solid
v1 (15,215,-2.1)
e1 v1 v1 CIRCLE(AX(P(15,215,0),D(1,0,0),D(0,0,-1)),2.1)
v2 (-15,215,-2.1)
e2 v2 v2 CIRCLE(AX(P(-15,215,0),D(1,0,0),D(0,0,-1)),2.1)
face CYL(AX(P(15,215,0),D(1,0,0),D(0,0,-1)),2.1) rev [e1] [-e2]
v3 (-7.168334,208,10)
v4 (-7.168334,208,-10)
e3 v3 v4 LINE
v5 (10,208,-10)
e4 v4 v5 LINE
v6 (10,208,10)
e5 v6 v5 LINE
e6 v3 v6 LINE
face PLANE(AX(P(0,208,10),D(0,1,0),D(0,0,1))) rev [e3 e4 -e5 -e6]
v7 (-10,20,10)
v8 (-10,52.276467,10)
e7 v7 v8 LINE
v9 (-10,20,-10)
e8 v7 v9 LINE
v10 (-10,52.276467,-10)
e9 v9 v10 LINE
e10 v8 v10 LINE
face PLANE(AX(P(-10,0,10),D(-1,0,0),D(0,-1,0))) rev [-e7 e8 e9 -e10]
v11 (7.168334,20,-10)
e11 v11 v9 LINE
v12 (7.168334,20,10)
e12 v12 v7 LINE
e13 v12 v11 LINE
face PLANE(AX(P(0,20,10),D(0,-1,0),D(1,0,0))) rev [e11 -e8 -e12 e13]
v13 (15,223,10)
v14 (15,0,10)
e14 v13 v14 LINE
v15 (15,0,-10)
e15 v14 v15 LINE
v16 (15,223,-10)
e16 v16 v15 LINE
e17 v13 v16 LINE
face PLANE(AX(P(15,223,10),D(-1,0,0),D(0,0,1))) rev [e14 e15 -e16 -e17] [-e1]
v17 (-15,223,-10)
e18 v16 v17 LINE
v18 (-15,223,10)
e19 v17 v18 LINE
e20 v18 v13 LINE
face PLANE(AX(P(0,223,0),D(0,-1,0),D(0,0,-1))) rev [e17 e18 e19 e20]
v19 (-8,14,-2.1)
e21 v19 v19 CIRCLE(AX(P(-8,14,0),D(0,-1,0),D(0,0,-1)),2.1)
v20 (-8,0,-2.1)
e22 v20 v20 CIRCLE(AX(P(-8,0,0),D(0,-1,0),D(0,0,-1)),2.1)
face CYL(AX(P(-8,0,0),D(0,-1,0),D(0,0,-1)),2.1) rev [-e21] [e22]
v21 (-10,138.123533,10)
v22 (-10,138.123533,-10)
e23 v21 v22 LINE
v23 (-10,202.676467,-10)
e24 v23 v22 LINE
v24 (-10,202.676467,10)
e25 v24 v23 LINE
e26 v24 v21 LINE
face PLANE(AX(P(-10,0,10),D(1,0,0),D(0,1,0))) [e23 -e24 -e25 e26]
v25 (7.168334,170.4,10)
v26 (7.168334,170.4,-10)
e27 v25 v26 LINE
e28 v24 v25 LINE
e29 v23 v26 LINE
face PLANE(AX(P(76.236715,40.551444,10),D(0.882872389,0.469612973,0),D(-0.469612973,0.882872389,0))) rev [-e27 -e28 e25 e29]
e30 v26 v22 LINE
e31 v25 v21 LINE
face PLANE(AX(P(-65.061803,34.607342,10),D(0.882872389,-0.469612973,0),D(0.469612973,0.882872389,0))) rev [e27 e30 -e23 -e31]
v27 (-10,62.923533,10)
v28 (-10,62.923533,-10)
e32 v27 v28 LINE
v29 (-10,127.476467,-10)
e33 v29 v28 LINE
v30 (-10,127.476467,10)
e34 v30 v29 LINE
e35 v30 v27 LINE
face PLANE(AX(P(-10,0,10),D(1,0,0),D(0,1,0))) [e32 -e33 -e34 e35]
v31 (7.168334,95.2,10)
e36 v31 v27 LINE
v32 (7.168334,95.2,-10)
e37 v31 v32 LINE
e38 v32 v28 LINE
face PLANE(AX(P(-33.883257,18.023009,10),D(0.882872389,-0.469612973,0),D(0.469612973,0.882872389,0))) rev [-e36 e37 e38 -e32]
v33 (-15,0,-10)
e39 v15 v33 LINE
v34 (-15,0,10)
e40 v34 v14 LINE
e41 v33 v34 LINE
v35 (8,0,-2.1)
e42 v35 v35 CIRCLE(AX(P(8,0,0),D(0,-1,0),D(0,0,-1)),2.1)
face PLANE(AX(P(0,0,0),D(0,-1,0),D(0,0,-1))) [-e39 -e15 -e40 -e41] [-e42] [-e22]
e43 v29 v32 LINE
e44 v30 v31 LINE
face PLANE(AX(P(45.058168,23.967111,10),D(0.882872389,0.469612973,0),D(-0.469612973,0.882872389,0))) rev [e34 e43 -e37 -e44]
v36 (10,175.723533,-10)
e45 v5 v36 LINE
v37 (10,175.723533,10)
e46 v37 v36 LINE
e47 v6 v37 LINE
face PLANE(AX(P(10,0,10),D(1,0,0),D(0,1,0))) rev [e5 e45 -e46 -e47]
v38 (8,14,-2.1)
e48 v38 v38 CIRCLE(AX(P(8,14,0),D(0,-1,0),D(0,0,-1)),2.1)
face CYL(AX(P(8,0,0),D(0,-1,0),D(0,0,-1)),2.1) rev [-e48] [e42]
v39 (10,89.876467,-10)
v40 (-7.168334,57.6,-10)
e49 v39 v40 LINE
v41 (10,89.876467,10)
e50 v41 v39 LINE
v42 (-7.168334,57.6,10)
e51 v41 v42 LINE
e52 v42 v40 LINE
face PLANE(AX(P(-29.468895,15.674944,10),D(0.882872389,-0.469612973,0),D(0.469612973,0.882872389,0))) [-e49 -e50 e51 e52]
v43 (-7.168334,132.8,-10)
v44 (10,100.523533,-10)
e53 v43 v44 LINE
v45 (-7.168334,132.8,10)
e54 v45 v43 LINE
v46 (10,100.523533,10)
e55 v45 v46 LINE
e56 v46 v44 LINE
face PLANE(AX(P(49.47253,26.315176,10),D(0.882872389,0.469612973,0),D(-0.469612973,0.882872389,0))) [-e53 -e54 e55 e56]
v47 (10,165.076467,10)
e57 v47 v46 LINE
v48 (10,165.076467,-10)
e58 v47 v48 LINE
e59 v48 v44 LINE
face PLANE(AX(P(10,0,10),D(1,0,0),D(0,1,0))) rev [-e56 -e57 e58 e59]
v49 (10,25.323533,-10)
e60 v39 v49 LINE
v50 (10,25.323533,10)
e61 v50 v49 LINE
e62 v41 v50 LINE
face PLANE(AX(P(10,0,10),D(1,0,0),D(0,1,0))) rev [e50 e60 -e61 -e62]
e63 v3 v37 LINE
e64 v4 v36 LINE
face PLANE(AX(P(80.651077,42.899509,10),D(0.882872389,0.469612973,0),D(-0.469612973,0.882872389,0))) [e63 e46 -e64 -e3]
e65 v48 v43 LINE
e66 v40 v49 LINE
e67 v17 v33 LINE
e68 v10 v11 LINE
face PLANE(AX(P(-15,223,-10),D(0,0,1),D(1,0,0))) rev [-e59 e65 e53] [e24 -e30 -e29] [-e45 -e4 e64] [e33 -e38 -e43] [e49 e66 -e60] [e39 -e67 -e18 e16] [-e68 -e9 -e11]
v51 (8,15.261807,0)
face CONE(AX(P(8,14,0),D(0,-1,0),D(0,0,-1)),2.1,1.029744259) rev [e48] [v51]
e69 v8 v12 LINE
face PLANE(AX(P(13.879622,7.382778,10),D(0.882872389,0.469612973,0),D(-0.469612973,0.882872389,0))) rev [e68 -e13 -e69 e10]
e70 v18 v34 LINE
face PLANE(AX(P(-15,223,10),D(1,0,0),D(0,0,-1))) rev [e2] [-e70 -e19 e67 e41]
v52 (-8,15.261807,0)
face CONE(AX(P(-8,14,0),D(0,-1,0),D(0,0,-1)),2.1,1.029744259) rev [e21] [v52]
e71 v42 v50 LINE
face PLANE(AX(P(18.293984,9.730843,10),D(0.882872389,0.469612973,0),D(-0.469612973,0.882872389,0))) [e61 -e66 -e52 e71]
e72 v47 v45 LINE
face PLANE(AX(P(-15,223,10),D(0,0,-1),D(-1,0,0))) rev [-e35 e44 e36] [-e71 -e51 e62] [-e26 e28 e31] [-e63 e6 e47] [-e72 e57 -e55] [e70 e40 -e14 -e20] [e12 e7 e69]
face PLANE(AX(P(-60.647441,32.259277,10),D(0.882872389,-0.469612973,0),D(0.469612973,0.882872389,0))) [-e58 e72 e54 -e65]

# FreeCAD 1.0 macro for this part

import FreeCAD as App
import Part
import Sketcher

V = App.Vector
Q = App.Units.Quantity

doc = App.newDocument("Part")
params = doc.addObject("Spreadsheet::Sheet", "Params")
for row, (alias, value) in enumerate([
    ("sketch1_width", "30 mm"),
    ("sketch1_height", "20 mm"),
    ("pad1_length", "223 mm"),
    ("sketch3_diameter", "4.2 mm"),
    ("hole_diameter", "4.2 mm"),
    ("hole_depth", "14 mm"),
    ("sketch4_diameter", "4.2 mm"),
    ("hole2_diameter", "4.2 mm"),
], start=1):
    params.set(f"A{row}", alias)
    params.set(f"B{row}", "=" + value)
    params.setAlias(f"B{row}", alias)

body = doc.addObject("PartDesign::Body", "Body")

# Sketch on XZ plane
sketch1 = body.newObject("Sketcher::SketchObject", "Sketch")
sketch1.AttachmentSupport = (doc.getObject("XZ_Plane"), [""])
sketch1.MapMode = "FlatFace"
sketch1.addGeometry([
    Part.LineSegment(V(-15, -10, 0), V(-15, 10, 0)),
    Part.LineSegment(V(-15, 10, 0), V(15, 10, 0)),
    Part.LineSegment(V(15, 10, 0), V(15, -10, 0)),
    Part.LineSegment(V(15, -10, 0), V(-15, -10, 0)),
], False)
sketch1.addConstraint([
    Sketcher.Constraint("Coincident", 0, 2, 1, 1),
    Sketcher.Constraint("Coincident", 1, 2, 2, 1),
    Sketcher.Constraint("Coincident", 2, 2, 3, 1),
    Sketcher.Constraint("Coincident", 3, 2, 0, 1),
    Sketcher.Constraint("Vertical", 0),
    Sketcher.Constraint("Horizontal", 1),
    Sketcher.Constraint("Vertical", 2),
    Sketcher.Constraint("Horizontal", 3),
    Sketcher.Constraint("Symmetric", 0, 2, 2, 2, -1, 1),
    Sketcher.Constraint("DistanceX", 1, 1, 1, 2, Q("30 mm")),
    Sketcher.Constraint("DistanceY", 0, 1, 0, 2, Q("20 mm")),
])
sketch1.setExpression("Constraints[9]", "Params.sketch1_width")
sketch1.setExpression("Constraints[10]", "Params.sketch1_height")
pad1 = body.newObject("PartDesign::Pad", "Pad")
pad1.Profile = sketch1
pad1.setExpression("Length", "Params.pad1_length")
pad1.Reversed = True

# Sketch on XY plane
sketch2 = body.newObject("Sketcher::SketchObject", "Sketch001")
sketch2.AttachmentSupport = (doc.getObject("XY_Plane"), [""])
sketch2.MapMode = "FlatFace"
sketch2.AttachmentOffset = App.Placement(V(0, 0, -10), App.Rotation())
sketch2.addGeometry([
    Part.LineSegment(V(-10, 20, 0), V(7.168334, 20, 0)),  # 0
    Part.LineSegment(V(7.168334, 20, 0), V(-10, 52.276467, 0)),  # 1
    Part.LineSegment(V(-10, 52.276467, 0), V(-10, 20, 0)),  # 2
    Part.LineSegment(V(10, 89.876467, 0), V(-7.168334, 57.6, 0)),  # 3
    Part.LineSegment(V(-7.168334, 57.6, 0), V(10, 25.323533, 0)),  # 4
    Part.LineSegment(V(10, 25.323533, 0), V(10, 89.876467, 0)),  # 5
    Part.LineSegment(V(-10, 127.476467, 0), V(-10, 62.923533, 0)),  # 6
    Part.LineSegment(V(-10, 62.923533, 0), V(7.168334, 95.2, 0)),  # 7
    Part.LineSegment(V(7.168334, 95.2, 0), V(-10, 127.476467, 0)),  # 8
    Part.LineSegment(V(10, 165.076467, 0), V(-7.168334, 132.8, 0)),  # 9
    Part.LineSegment(V(-7.168334, 132.8, 0), V(10, 100.523533, 0)),  # 10
    Part.LineSegment(V(10, 100.523533, 0), V(10, 165.076467, 0)),  # 11
    Part.LineSegment(V(-10, 202.676467, 0), V(-10, 138.123533, 0)),  # 12
    Part.LineSegment(V(-10, 138.123533, 0), V(7.168334, 170.4, 0)),  # 13
    Part.LineSegment(V(7.168334, 170.4, 0), V(-10, 202.676467, 0)),  # 14
    Part.LineSegment(V(10, 208, 0), V(-7.168334, 208, 0)),  # 15
    Part.LineSegment(V(-7.168334, 208, 0), V(10, 175.723533, 0)),  # 16
    Part.LineSegment(V(10, 175.723533, 0), V(10, 208, 0)),  # 17
], False)
sketch2.addConstraint([
    Sketcher.Constraint("Coincident", 0, 2, 1, 1),
    Sketcher.Constraint("Coincident", 1, 2, 2, 1),
    Sketcher.Constraint("Coincident", 2, 2, 0, 1),
    Sketcher.Constraint("Coincident", 3, 2, 4, 1),
    Sketcher.Constraint("Coincident", 4, 2, 5, 1),
    Sketcher.Constraint("Coincident", 5, 2, 3, 1),
    Sketcher.Constraint("Coincident", 6, 2, 7, 1),
    Sketcher.Constraint("Coincident", 7, 2, 8, 1),
    Sketcher.Constraint("Coincident", 8, 2, 6, 1),
    Sketcher.Constraint("Coincident", 9, 2, 10, 1),
    Sketcher.Constraint("Coincident", 10, 2, 11, 1),
    Sketcher.Constraint("Coincident", 11, 2, 9, 1),
    Sketcher.Constraint("Coincident", 12, 2, 13, 1),
    Sketcher.Constraint("Coincident", 13, 2, 14, 1),
    Sketcher.Constraint("Coincident", 14, 2, 12, 1),
    Sketcher.Constraint("Coincident", 15, 2, 16, 1),
    Sketcher.Constraint("Coincident", 16, 2, 17, 1),
    Sketcher.Constraint("Coincident", 17, 2, 15, 1),
    Sketcher.Constraint("Horizontal", 0),
    Sketcher.Constraint("Vertical", 2),
    Sketcher.Constraint("Vertical", 5),
    Sketcher.Constraint("Vertical", 6),
    Sketcher.Constraint("Vertical", 11),
    Sketcher.Constraint("Vertical", 12),
    Sketcher.Constraint("Horizontal", 15),
    Sketcher.Constraint("Vertical", 17),
    Sketcher.Constraint("Parallel", 1, 4),
    Sketcher.Constraint("Parallel", 3, 7),
    Sketcher.Constraint("Parallel", 4, 8),
    Sketcher.Constraint("Parallel", 7, 9),
    Sketcher.Constraint("Parallel", 8, 10),
    Sketcher.Constraint("Parallel", 9, 13),
    Sketcher.Constraint("Parallel", 10, 14),
    Sketcher.Constraint("Parallel", 14, 16),
    Sketcher.Constraint("Vertical", 2, 2, 6, 2),
    Sketcher.Constraint("Vertical", 0, 2, 7, 2),
    Sketcher.Constraint("Vertical", 3, 2, 9, 2),
    Sketcher.Constraint("Vertical", 5, 2, 10, 2),
    Sketcher.Constraint("Vertical", 8, 2, 12, 2),
    Sketcher.Constraint("Vertical", 7, 2, 13, 2),
    Sketcher.Constraint("Vertical", 9, 2, 15, 2),
    Sketcher.Constraint("Vertical", 11, 2, 16, 2),
    Sketcher.Constraint("Equal", 0, 15),
    Sketcher.Constraint("Equal", 1, 3),
    Sketcher.Constraint("DistanceY", -1, 1, 0, 2, Q("20 mm")),
    Sketcher.Constraint("DistanceX", 1, 2, -1, 1, Q("10 mm")),
    Sketcher.Constraint("DistanceX", -1, 1, 4, 2, Q("10 mm")),
    Sketcher.Constraint("DistanceY", -1, 1, 15, 2, Q("208 mm")),
    Sketcher.Constraint("DistanceY", -1, 1, 3, 2, Q("57.6 mm")),
    Sketcher.Constraint("DistanceY", -1, 1, 7, 2, Q("95.2 mm")),
    Sketcher.Constraint("DistanceY", -1, 1, 9, 2, Q("132.8 mm")),
    Sketcher.Constraint("DistanceY", -1, 1, 13, 2, Q("170.4 mm")),
    Sketcher.Constraint("DistanceX", 0, 1, 0, 2, Q("17.168334 mm")),
    Sketcher.Constraint("DistanceY", 2, 2, 2, 1, Q("32.276467 mm")),
])
pocket1 = body.newObject("PartDesign::Pocket", "Pocket")
pocket1.Profile = sketch2
pocket1.Type = "ThroughAll"
pocket1.Reversed = True

# Sketch on XZ plane
sketch3 = body.newObject("Sketcher::SketchObject", "Sketch002")
sketch3.AttachmentSupport = (doc.getObject("XZ_Plane"), [""])
sketch3.MapMode = "FlatFace"
sketch3.addGeometry([
    Part.Circle(V(-8, 0, 0), V(0, 0, 1), 2.1),
    Part.Circle(V(8, 0, 0), V(0, 0, 1), 2.1),
], False)
sketch3.addConstraint([
    Sketcher.Constraint("Equal", 0, 1),
    Sketcher.Constraint("Symmetric", 0, 3, 1, 3, -1, 1),
    Sketcher.Constraint("PointOnObject", 0, 3, -1),
    Sketcher.Constraint("Diameter", 0, Q("4.2 mm")),
    Sketcher.Constraint("DistanceX", 0, 3, -1, 1, Q("8 mm")),
])
sketch3.setExpression("Constraints[3]", "Params.sketch3_diameter")
doc.recompute()
hole = body.newObject("PartDesign::Hole", "Hole")
hole.Profile = sketch3
hole.ThreadType = "None"
hole.setExpression("Diameter", "Params.hole_diameter")
hole.DepthType = "Dimension"
hole.setExpression("Depth", "Params.hole_depth")
hole.DrillPoint = "Angled"
hole.DrillPointAngle = 118

# Sketch on YZ plane
sketch4 = body.newObject("Sketcher::SketchObject", "Sketch003")
sketch4.AttachmentSupport = (doc.getObject("YZ_Plane"), [""])
sketch4.MapMode = "FlatFace"
sketch4.AttachmentOffset = App.Placement(V(0, 0, 15), App.Rotation())
sketch4.addGeometry(Part.Circle(V(215, 0, 0), V(0, 0, 1), 2.1), False)
sketch4.addConstraint([
    Sketcher.Constraint("PointOnObject", 0, 3, -1),
    Sketcher.Constraint("Diameter", 0, Q("4.2 mm")),
    Sketcher.Constraint("DistanceX", -1, 1, 0, 3, Q("215 mm")),
])
sketch4.setExpression("Constraints[1]", "Params.sketch4_diameter")
doc.recompute()
hole2 = body.newObject("PartDesign::Hole", "Hole001")
hole2.Profile = sketch4
hole2.ThreadType = "None"
hole2.setExpression("Diameter", "Params.hole2_diameter")
hole2.DepthType = "ThroughAll"

doc.recompute()
